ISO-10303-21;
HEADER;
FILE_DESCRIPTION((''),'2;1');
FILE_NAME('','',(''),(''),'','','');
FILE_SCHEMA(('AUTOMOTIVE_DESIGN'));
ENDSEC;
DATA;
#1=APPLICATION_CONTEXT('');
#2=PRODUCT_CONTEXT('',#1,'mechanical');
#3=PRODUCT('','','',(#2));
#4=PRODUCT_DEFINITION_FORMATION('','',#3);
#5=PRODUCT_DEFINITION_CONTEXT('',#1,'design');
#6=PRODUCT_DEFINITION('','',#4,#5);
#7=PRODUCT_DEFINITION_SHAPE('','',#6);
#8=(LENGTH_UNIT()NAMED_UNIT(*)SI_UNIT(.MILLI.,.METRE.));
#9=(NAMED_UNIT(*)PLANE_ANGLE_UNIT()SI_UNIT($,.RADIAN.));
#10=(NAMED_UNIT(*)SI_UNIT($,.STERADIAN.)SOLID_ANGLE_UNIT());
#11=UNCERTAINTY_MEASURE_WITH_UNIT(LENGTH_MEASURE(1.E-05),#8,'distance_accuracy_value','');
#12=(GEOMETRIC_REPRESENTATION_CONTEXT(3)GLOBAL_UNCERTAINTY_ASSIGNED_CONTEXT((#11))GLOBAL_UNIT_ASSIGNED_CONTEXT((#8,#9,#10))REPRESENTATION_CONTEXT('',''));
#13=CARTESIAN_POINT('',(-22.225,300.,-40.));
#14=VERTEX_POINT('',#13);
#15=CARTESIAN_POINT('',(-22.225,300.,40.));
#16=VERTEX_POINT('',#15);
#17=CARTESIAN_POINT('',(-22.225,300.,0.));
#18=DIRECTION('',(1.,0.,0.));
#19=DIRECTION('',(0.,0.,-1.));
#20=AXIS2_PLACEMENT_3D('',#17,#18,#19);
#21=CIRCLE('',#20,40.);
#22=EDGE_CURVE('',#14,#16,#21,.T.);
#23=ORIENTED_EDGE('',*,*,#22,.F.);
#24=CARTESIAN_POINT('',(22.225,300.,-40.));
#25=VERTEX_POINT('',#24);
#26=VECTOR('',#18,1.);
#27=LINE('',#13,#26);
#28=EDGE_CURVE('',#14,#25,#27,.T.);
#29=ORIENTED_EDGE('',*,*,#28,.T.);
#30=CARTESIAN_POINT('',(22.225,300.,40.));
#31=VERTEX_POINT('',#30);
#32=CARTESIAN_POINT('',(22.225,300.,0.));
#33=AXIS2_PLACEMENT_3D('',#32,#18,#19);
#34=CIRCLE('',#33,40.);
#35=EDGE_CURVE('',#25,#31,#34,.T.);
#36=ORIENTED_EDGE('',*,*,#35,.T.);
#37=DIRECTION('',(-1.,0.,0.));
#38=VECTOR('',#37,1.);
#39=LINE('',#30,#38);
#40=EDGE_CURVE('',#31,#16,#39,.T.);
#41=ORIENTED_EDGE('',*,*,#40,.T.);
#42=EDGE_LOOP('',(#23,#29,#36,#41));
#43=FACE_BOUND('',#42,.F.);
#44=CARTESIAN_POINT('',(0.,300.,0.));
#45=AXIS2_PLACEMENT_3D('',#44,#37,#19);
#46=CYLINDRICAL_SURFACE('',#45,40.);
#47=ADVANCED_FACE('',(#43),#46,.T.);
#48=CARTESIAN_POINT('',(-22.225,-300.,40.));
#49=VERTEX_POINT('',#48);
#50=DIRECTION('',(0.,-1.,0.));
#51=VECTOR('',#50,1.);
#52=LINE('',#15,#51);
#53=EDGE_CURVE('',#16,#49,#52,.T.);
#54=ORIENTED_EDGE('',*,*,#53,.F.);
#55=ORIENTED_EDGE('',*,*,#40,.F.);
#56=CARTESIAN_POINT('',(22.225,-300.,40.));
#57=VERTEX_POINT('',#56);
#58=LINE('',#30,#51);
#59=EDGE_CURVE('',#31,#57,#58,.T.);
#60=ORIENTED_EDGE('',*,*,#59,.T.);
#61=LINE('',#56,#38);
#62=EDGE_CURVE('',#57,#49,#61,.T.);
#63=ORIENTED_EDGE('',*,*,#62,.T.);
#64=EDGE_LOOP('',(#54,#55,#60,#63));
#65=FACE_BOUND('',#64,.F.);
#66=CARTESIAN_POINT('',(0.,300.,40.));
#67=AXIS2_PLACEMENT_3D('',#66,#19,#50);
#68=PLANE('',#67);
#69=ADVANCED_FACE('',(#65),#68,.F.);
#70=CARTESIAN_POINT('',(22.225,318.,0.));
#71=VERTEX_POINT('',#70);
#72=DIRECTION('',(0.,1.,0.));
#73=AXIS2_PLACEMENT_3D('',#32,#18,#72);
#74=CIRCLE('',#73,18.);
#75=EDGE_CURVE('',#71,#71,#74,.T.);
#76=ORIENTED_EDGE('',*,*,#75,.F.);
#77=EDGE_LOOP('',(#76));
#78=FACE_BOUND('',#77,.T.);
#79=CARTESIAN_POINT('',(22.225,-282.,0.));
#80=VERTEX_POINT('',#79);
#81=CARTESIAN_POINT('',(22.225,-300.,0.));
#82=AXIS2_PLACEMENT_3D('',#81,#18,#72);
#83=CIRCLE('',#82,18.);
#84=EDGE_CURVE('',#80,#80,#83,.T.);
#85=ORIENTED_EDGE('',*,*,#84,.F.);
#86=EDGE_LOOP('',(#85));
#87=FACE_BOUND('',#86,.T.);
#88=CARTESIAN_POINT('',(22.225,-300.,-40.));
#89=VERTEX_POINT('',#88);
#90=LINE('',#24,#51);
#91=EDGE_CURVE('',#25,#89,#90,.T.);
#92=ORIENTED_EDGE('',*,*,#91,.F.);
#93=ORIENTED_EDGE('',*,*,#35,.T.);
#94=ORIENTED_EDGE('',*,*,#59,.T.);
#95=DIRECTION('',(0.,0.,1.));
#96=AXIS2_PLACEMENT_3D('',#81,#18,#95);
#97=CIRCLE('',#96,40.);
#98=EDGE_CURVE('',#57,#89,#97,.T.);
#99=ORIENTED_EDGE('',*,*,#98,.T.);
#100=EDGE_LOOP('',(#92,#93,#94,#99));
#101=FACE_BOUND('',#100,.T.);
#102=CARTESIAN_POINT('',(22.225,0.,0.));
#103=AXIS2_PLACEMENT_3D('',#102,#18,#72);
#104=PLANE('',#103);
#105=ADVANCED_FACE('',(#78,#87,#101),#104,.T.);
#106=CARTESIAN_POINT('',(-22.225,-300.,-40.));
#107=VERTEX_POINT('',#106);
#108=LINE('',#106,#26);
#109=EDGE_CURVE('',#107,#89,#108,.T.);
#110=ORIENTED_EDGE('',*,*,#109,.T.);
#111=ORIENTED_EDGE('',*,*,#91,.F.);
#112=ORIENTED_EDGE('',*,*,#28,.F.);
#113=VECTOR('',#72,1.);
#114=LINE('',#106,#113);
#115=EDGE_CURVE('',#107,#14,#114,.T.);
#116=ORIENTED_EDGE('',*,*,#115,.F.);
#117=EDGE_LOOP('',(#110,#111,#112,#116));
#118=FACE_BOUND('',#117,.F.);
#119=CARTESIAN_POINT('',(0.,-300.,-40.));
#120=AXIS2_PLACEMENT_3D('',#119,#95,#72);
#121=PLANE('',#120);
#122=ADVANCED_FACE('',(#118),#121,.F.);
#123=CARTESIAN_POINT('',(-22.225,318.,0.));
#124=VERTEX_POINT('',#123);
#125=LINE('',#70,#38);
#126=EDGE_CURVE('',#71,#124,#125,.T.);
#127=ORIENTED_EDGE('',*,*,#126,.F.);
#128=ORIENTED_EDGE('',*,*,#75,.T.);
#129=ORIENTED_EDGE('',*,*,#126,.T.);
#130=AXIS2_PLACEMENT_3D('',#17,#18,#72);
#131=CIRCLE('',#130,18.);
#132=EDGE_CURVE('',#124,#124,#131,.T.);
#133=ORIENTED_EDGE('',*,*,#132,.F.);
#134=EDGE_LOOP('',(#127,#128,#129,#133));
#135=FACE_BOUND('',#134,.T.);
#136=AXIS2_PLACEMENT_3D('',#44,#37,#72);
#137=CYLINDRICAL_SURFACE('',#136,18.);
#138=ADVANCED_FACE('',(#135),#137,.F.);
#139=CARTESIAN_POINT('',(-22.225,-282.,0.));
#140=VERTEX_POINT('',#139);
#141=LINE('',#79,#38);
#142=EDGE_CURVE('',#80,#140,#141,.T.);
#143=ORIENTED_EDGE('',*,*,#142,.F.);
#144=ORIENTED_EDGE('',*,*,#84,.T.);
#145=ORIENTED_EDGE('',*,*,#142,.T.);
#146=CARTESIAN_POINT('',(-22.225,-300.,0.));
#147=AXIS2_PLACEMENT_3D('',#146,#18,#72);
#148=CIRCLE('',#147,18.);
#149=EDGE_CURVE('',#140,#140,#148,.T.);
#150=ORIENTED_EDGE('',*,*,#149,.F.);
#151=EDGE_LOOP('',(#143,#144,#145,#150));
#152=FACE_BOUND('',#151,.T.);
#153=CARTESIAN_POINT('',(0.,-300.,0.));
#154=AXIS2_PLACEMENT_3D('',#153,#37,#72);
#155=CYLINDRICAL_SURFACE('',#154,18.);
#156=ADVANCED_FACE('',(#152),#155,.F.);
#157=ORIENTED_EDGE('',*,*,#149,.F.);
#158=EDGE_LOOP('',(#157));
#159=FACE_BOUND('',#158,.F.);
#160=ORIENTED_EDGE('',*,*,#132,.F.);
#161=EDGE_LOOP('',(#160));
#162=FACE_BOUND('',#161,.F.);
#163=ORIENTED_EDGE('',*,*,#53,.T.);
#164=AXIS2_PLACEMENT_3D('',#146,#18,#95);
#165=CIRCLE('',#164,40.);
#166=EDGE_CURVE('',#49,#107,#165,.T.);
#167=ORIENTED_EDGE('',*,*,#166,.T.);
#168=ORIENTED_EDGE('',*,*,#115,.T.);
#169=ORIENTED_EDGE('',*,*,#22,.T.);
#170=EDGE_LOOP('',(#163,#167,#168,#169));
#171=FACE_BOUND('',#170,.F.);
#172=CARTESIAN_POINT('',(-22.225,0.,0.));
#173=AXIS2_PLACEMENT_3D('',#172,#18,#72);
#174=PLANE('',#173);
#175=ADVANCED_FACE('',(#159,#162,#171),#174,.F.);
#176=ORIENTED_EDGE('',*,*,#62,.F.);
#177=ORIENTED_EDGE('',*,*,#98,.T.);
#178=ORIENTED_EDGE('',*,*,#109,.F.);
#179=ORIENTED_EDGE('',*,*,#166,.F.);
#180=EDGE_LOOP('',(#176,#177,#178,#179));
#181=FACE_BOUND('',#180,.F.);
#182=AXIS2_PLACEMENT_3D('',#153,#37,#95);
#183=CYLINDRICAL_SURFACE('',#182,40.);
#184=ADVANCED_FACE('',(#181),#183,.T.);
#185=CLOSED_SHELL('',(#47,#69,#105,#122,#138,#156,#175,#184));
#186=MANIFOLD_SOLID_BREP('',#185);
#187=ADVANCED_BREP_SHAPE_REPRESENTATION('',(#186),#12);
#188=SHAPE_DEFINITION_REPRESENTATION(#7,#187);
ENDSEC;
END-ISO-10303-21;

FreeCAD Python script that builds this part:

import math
import FreeCAD as App
import Part
import Sketcher
from FreeCAD import Vector

doc = App.newDocument("Part")
body = doc.addObject("PartDesign::Body", "Body")

sketch1 = body.newObject("Sketcher::SketchObject", "Sketch")
sketch1.AttachmentSupport = (doc.getObject("YZ_Plane"), [""])
sketch1.MapMode = "FlatFace"
sketch1.addGeometry(Part.ArcOfCircle(Part.Circle(Vector(-300, 0, 0), Vector(0, 0, 1), 40), math.radians(90), math.radians(270)), False)
sketch1.addGeometry(Part.LineSegment(Vector(-300, -40, 0), Vector(300, -40, 0)), False)
sketch1.addGeometry(Part.ArcOfCircle(Part.Circle(Vector(300, 0, 0), Vector(0, 0, 1), 40), math.radians(-90), math.radians(90)), False)
sketch1.addGeometry(Part.LineSegment(Vector(300, 40, 0), Vector(-300, 40, 0)), False)
sketch1.addGeometry(Part.Circle(Vector(-300, 0, 0), Vector(0, 0, 1), 18), False)
sketch1.addGeometry(Part.Circle(Vector(300, 0, 0), Vector(0, 0, 1), 18), False)
sketch1.addConstraint(Sketcher.Constraint("Tangent", 0, 2, 1, 1))
sketch1.addConstraint(Sketcher.Constraint("Tangent", 1, 2, 2, 1))
sketch1.addConstraint(Sketcher.Constraint("Tangent", 2, 2, 3, 1))
sketch1.addConstraint(Sketcher.Constraint("Tangent", 3, 2, 0, 1))
sketch1.addConstraint(Sketcher.Constraint("Horizontal", 1))
sketch1.addConstraint(Sketcher.Constraint("Horizontal", 3))
sketch1.addConstraint(Sketcher.Constraint("Coincident", 4, 3, 0, 3))
sketch1.addConstraint(Sketcher.Constraint("Coincident", 5, 3, 2, 3))
sketch1.addConstraint(Sketcher.Constraint("Equal", 4, 5))
sketch1.addConstraint(Sketcher.Constraint("Symmetric", 0, 3, 2, 3, -1, 1))
sketch1.addConstraint(Sketcher.Constraint("Diameter", 4, 36.0))
sketch1.addConstraint(Sketcher.Constraint("Radius", 0, 40.0))
sketch1.addConstraint(Sketcher.Constraint("DistanceX", 0, 3, -1, 1, 300.0))
pad1 = body.newObject("PartDesign::Pad", "Pad")
pad1.Profile = sketch1
pad1.Length = 44.45
pad1.Midplane = True

doc.recompute()
